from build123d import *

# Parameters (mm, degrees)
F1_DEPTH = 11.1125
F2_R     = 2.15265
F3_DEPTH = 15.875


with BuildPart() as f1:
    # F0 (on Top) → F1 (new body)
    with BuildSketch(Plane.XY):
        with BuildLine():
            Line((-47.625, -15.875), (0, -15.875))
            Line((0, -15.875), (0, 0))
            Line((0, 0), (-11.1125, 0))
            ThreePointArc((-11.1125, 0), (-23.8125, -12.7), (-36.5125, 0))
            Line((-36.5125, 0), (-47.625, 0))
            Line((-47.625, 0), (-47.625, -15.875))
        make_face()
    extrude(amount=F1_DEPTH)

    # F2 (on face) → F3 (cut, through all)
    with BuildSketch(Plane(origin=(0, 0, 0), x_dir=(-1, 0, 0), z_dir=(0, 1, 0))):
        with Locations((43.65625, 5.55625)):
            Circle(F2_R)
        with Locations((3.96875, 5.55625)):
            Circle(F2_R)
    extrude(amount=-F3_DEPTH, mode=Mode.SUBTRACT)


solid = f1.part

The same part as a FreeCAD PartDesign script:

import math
import FreeCAD as App
import Part
import Sketcher
from FreeCAD import Vector
Q = App.Units.Quantity

doc = App.newDocument("Part")
body = doc.addObject("PartDesign::Body", "Body")

sketch1 = body.newObject("Sketcher::SketchObject", "Sketch")
sketch1.AttachmentSupport = (doc.getObject("XY_Plane"), [""])
sketch1.MapMode = "FlatFace"
sketch1.addGeometry([
    Part.LineSegment(Vector(-48, -16, 0), Vector(0, -16, 0)),
    Part.LineSegment(Vector(0, -16, 0), Vector(0, 0, 0)),
    Part.LineSegment(Vector(0, 0, 0), Vector(-11, 0, 0)),
    Part.ArcOfCircle(Part.Circle(Vector(-24, 0, 0), Vector(0, 0, 1), 13), math.radians(180), math.radians(360)),
    Part.LineSegment(Vector(-37, 0, 0), Vector(-48, 0, 0)),
    Part.LineSegment(Vector(-48, 0, 0), Vector(-48, -16, 0)),
], False)
sketch1.addConstraint([
    Sketcher.Constraint("Coincident", 0, 2, 1, 1),
    Sketcher.Constraint("Coincident", 1, 2, 2, 1),
    Sketcher.Constraint("Coincident", 2, 2, 3, 2),
    Sketcher.Constraint("Coincident", 3, 1, 4, 1),
    Sketcher.Constraint("Coincident", 4, 2, 5, 1),
    Sketcher.Constraint("Coincident", 5, 2, 0, 1),
    Sketcher.Constraint("Horizontal", 0),
    Sketcher.Constraint("Vertical", 1),
    Sketcher.Constraint("Horizontal", 2),
    Sketcher.Constraint("Horizontal", 4),
    Sketcher.Constraint("Vertical", 5),
    Sketcher.Constraint("Coincident", 1, 2, -1, 1),
    Sketcher.Constraint("PointOnObject", 3, 3, -1),
    Sketcher.Constraint("PointOnObject", 3, 1, -1),
    Sketcher.Constraint("Equal", 2, 4),
    Sketcher.Constraint("Radius", 3, Q("0.5 in")),
    Sketcher.Constraint("DistanceX", 0, 1, 0, 2, Q("1.875 in")),
    Sketcher.Constraint("DistanceY", 1, 1, 1, 2, Q("0.625 in")),
])
pad1 = body.newObject("PartDesign::Pad", "Pad")
pad1.Profile = sketch1
pad1.Length = Q("0.4375 in")

sketch2 = body.newObject("Sketcher::SketchObject", "Sketch001")
sketch2.AttachmentSupport = (doc.getObject("XZ_Plane"), [""])
sketch2.MapMode = "FlatFace"
sketch2.addGeometry([
    Part.Circle(Vector(-43.7, 5.6, 0), Vector(0, 0, 1), 2.2),
    Part.Circle(Vector(-4, 5.6, 0), Vector(0, 0, 1), 2.2),
], False)
sketch2.addConstraint([
    Sketcher.Constraint("Equal", 0, 1),
    Sketcher.Constraint("Horizontal", 0, 3, 1, 3),
    Sketcher.Constraint("Diameter", 0, Q("0.1695 in")),
    Sketcher.Constraint("DistanceX", 0, 3, -1, 1, Q("1.71875 in")),
    Sketcher.Constraint("DistanceY", -1, 1, 0, 3, Q("0.21875 in")),
    Sketcher.Constraint("DistanceX", 1, 3, -1, 1, Q("0.15625 in")),
])
pocket1 = body.newObject("PartDesign::Pocket", "Pocket")
pocket1.Profile = sketch2
pocket1.Type = "ThroughAll"
pocket1.Reversed = True

doc.recompute()
